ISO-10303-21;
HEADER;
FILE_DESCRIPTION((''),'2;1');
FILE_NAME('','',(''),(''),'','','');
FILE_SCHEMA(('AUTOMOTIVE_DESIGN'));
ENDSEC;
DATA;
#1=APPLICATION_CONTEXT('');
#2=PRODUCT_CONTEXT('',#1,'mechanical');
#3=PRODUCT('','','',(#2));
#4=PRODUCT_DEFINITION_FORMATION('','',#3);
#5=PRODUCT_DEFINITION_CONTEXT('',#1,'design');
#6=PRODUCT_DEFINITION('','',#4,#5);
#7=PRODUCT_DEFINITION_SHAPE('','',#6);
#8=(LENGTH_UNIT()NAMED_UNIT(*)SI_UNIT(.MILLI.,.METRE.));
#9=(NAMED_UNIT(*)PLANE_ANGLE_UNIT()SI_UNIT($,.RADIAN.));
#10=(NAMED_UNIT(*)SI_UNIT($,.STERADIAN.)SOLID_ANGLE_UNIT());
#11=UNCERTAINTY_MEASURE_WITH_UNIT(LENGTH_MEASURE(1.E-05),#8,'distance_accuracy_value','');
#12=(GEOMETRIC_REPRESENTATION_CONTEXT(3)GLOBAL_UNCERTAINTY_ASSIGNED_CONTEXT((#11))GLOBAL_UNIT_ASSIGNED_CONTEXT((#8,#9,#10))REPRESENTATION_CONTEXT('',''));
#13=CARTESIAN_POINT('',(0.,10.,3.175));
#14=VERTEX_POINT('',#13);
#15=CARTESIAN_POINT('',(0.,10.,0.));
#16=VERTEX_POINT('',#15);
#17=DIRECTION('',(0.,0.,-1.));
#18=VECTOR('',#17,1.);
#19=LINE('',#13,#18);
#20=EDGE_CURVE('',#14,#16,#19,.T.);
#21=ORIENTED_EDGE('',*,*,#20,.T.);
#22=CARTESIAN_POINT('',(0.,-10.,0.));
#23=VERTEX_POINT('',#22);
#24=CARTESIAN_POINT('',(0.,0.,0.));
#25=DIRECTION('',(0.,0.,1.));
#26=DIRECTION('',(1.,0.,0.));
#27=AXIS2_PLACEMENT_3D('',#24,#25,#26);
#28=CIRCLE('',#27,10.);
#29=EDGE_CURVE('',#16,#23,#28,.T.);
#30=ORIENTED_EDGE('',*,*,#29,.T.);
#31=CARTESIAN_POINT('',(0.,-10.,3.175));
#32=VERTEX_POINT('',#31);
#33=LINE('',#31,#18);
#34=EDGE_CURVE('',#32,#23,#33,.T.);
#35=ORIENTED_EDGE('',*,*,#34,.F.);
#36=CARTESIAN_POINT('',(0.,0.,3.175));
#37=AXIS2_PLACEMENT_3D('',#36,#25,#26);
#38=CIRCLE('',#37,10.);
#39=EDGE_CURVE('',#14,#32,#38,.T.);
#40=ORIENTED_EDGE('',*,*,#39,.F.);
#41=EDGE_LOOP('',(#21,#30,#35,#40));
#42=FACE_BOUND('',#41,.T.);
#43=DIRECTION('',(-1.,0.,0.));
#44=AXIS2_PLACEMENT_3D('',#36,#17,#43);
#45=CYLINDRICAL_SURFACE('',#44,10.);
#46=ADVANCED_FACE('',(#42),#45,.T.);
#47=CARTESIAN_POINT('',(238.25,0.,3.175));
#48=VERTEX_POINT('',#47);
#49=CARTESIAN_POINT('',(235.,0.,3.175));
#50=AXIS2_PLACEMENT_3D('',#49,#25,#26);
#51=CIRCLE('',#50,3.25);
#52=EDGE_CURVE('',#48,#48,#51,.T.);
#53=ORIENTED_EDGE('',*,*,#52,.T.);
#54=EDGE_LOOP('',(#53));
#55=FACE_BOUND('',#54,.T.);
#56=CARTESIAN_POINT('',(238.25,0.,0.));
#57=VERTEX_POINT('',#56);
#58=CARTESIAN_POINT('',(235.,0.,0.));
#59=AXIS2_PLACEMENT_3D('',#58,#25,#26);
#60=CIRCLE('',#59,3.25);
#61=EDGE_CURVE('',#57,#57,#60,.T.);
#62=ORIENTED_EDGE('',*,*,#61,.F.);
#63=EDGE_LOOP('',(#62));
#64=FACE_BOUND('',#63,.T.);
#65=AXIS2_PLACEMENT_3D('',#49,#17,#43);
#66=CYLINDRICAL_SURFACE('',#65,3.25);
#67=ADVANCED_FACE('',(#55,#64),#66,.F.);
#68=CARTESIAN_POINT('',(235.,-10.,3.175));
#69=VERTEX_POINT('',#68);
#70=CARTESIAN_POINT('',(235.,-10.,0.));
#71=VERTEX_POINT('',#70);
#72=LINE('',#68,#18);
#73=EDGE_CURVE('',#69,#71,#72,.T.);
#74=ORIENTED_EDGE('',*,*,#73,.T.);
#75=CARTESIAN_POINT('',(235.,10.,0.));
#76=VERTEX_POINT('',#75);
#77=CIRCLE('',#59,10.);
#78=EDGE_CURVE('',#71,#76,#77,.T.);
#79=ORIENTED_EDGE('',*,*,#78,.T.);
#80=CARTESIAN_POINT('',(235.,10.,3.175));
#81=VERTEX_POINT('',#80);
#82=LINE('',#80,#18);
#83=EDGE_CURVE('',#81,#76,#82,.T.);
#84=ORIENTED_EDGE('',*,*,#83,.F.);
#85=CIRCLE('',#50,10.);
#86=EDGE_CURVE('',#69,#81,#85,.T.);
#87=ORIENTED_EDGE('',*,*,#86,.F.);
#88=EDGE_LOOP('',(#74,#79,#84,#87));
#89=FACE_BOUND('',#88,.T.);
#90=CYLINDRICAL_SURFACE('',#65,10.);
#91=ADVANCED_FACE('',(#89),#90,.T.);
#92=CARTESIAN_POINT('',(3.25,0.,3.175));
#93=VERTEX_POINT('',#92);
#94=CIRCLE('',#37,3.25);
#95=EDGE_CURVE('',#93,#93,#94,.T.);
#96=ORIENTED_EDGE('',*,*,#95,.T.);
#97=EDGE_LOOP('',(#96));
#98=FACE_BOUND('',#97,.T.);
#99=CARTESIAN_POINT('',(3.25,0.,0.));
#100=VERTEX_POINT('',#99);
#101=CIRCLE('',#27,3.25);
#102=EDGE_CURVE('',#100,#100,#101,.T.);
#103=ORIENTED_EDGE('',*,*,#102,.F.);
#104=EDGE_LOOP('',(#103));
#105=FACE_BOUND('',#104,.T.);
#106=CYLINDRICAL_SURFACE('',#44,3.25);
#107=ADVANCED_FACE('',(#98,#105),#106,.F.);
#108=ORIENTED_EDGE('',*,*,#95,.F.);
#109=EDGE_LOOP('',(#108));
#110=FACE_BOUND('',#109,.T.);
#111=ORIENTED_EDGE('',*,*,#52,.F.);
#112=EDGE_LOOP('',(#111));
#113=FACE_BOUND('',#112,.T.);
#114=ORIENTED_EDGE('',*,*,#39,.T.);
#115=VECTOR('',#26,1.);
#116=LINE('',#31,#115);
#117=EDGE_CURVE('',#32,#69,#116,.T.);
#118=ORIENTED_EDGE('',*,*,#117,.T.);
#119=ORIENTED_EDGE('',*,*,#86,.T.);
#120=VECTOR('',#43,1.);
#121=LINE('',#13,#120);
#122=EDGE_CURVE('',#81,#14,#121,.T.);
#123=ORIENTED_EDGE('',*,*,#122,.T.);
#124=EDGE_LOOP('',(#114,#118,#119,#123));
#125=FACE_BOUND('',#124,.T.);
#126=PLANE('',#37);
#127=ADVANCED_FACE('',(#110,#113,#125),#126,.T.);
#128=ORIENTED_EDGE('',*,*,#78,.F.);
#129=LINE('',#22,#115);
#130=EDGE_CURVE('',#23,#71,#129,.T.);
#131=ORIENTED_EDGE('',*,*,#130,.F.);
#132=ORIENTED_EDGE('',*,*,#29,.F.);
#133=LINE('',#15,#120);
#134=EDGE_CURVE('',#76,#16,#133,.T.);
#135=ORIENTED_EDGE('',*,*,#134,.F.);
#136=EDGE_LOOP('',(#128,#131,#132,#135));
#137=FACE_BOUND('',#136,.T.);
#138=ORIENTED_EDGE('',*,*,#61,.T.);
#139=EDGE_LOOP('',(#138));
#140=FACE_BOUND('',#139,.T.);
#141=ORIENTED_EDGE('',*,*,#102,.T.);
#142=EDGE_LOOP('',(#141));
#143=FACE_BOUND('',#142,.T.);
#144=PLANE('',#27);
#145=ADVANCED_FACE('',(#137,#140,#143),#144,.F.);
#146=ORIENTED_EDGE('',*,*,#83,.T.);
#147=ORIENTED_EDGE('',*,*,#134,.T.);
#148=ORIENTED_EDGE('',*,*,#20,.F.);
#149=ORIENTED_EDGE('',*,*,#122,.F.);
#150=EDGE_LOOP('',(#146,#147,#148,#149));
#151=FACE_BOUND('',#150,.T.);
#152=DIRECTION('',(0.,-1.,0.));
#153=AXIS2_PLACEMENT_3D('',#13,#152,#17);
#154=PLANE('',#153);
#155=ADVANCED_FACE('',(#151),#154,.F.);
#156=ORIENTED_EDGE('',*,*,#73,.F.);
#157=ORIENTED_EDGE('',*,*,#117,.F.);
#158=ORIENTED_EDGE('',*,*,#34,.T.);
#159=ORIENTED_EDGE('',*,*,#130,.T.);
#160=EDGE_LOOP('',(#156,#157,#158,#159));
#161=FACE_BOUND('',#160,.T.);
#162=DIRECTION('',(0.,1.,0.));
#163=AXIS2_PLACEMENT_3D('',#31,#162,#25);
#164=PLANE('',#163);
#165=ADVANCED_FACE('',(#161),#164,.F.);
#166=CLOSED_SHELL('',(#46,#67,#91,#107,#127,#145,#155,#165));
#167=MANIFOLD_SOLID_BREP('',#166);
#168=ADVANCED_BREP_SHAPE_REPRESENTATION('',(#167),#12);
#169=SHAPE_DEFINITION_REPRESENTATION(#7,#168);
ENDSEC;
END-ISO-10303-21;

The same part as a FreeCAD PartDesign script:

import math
import FreeCAD as App
import Part
import Sketcher

V = App.Vector

doc = App.newDocument("Part")
body = doc.addObject("PartDesign::Body", "Body")

sketch1 = body.newObject("Sketcher::SketchObject", "Sketch")
sketch1.AttachmentSupport = (doc.getObject("XY_Plane"), [""])
sketch1.MapMode = "FlatFace"
sketch1.addGeometry([
    Part.LineSegment(V(235, 10, 0), V(0, 10, 0)),
    Part.ArcOfCircle(Part.Circle(V(0, 0, 0), V(0, 0, 1), 10), math.radians(90), math.radians(270)),
    Part.LineSegment(V(0, -10, 0), V(235, -10, 0)),
    Part.ArcOfCircle(Part.Circle(V(235, 0, 0), V(0, 0, 1), 10), math.radians(-90), math.radians(90)),
    Part.Circle(V(235, 0, 0), V(0, 0, 1), 3.2),
    Part.Circle(V(0, 0, 0), V(0, 0, 1), 3.2),
], False)
sketch1.addConstraint([
    Sketcher.Constraint("Tangent", 0, 2, 1, 1),
    Sketcher.Constraint("Tangent", 1, 2, 2, 1),
    Sketcher.Constraint("Tangent", 2, 2, 3, 1),
    Sketcher.Constraint("Tangent", 3, 2, 0, 1),
    Sketcher.Constraint("Horizontal", 0),
    Sketcher.Constraint("Horizontal", 2),
    Sketcher.Constraint("Coincident", 1, 3, -1, 1),
    Sketcher.Constraint("Coincident", 5, 3, -1, 1),
    Sketcher.Constraint("Coincident", 4, 3, 3, 3),
    Sketcher.Constraint("Equal", 4, 5),
    Sketcher.Constraint("Radius", 1, 10.0),
    Sketcher.Constraint("Diameter", 4, 6.5),
    Sketcher.Constraint("DistanceX", 0, 2, 0, 1, 235.0),
])
pad1 = body.newObject("PartDesign::Pad", "Pad")
pad1.Profile = sketch1
pad1.Length = 3.175

doc.recompute()
